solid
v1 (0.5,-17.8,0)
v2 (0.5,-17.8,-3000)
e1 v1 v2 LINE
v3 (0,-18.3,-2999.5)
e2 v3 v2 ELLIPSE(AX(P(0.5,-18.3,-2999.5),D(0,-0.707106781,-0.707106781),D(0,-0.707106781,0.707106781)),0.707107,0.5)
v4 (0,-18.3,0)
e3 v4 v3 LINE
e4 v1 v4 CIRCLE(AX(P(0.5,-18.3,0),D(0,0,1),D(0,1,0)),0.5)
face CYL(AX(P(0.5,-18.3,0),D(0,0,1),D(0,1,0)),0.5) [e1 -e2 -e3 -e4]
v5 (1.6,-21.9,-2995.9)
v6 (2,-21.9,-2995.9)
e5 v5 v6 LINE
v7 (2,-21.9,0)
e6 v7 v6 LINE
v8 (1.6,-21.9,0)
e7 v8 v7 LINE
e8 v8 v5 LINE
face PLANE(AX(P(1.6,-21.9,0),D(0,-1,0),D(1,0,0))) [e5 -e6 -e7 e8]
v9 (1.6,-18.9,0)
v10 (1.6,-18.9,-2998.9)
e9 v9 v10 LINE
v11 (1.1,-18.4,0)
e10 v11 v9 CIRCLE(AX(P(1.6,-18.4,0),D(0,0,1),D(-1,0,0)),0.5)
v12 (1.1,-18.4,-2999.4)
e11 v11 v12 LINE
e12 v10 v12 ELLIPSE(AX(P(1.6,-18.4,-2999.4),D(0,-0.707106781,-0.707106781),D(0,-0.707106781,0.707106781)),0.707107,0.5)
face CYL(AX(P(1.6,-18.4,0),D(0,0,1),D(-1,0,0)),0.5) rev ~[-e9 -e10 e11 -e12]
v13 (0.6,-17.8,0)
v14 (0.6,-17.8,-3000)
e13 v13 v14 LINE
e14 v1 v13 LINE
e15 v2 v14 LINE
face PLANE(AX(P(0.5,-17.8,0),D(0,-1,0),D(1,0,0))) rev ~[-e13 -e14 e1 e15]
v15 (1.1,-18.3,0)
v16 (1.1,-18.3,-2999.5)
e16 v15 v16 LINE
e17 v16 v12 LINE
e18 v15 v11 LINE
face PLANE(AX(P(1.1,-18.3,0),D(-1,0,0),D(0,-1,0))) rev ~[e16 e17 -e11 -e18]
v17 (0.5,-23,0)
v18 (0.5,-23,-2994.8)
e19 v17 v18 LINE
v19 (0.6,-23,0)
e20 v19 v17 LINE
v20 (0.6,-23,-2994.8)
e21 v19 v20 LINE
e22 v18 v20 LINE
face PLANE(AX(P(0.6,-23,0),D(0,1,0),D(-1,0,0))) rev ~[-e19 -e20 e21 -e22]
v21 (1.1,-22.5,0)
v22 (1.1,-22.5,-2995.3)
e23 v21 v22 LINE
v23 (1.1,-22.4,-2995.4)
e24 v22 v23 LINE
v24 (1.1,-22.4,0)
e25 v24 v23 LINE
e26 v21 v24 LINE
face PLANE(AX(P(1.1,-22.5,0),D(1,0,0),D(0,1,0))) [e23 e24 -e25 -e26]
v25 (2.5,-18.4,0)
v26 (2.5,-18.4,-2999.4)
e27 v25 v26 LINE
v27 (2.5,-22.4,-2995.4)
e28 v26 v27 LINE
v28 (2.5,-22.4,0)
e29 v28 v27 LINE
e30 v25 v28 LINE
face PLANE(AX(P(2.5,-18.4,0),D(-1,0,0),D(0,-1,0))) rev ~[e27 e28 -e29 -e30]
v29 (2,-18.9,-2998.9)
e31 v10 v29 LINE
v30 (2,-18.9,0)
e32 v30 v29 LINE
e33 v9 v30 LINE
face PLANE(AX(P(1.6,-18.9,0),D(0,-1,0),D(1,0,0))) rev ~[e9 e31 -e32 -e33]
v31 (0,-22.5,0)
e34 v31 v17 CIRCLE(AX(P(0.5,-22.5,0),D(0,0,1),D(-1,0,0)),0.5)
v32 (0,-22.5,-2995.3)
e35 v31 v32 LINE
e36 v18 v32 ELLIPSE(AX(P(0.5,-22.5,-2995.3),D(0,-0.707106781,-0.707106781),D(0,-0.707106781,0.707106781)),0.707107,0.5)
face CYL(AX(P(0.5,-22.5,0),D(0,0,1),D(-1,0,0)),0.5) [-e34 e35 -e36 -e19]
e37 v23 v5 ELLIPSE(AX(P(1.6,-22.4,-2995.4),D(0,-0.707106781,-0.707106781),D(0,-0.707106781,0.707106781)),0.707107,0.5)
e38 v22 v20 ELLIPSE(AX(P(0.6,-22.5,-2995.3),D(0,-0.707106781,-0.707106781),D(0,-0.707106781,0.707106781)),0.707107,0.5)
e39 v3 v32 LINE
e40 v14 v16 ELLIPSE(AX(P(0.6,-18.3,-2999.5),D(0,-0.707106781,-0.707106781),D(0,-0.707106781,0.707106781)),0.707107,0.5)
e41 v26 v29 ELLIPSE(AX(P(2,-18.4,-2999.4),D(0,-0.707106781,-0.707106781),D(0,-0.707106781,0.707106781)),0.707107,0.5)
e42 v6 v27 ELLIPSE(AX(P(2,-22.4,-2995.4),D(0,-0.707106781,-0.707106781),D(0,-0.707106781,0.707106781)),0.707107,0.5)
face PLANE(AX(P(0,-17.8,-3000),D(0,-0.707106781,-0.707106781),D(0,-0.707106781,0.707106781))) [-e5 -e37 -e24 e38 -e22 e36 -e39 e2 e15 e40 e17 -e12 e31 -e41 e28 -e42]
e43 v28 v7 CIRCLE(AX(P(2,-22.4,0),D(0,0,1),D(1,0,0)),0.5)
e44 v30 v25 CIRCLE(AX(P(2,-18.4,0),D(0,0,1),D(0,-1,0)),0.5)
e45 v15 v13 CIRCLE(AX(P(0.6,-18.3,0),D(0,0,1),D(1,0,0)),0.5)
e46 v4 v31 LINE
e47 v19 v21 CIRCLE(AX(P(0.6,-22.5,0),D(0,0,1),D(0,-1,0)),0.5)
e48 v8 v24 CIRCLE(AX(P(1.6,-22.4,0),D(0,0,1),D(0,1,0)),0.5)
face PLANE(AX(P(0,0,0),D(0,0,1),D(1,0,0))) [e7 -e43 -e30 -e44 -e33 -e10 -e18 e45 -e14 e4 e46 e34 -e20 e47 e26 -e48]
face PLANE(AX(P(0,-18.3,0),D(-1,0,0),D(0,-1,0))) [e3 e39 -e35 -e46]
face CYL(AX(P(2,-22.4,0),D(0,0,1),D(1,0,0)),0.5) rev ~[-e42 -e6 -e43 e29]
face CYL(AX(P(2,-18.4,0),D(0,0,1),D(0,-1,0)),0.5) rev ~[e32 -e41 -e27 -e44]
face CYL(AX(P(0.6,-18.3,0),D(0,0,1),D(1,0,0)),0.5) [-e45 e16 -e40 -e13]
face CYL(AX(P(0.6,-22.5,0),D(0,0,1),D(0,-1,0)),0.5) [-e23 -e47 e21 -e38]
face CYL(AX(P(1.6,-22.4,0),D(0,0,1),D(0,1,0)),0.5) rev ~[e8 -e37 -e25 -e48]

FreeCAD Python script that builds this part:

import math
import FreeCAD as App
import Part
import Sketcher

V = App.Vector

doc = App.newDocument("Part")
body = doc.addObject("PartDesign::Body", "Body")

sketch1 = body.newObject("Sketcher::SketchObject", "Sketch")
sketch1.AttachmentSupport = (doc.getObject("XY_Plane"), [""])
sketch1.MapMode = "FlatFace"
sketch1.addGeometry(Part.LineSegment(V(0.5, -23, 0), V(0.6, -23, 0)), False)
sketch1.addGeometry(Part.ArcOfCircle(Part.Circle(V(0.6, -22.5, 0), V(0, 0, 1), 0.5), math.radians(-90), math.radians(0)), False)
sketch1.addGeometry(Part.LineSegment(V(1.1, -22.5, 0), V(1.1, -22.4, 0)), False)
sketch1.addGeometry(Part.ArcOfCircle(Part.Circle(V(1.6, -22.4, 0), V(0, 0, 1), 0.5), math.radians(90), math.radians(180)), False)
sketch1.addGeometry(Part.LineSegment(V(1.6, -21.9, 0), V(2, -21.9, 0)), False)
sketch1.addGeometry(Part.ArcOfCircle(Part.Circle(V(2, -22.4, 0), V(0, 0, 1), 0.5), math.radians(0), math.radians(90)), False)
sketch1.addGeometry(Part.LineSegment(V(2.5, -22.4, 0), V(2.5, -18.4, 0)), False)
sketch1.addGeometry(Part.ArcOfCircle(Part.Circle(V(2, -18.4, 0), V(0, 0, 1), 0.5), math.radians(-90), math.radians(0)), False)
sketch1.addGeometry(Part.LineSegment(V(2, -18.9, 0), V(1.6, -18.9, 0)), False)
sketch1.addGeometry(Part.ArcOfCircle(Part.Circle(V(1.6, -18.4, 0), V(0, 0, 1), 0.5), math.radians(180), math.radians(270)), False)
sketch1.addGeometry(Part.LineSegment(V(1.1, -18.4, 0), V(1.1, -18.3, 0)), False)
sketch1.addGeometry(Part.ArcOfCircle(Part.Circle(V(0.6, -18.3, 0), V(0, 0, 1), 0.5), math.radians(0), math.radians(90)), False)
sketch1.addGeometry(Part.LineSegment(V(0.6, -17.8, 0), V(0.5, -17.8, 0)), False)
sketch1.addGeometry(Part.ArcOfCircle(Part.Circle(V(0.5, -18.3, 0), V(0, 0, 1), 0.5), math.radians(90), math.radians(180)), False)
sketch1.addGeometry(Part.LineSegment(V(0, -18.3, 0), V(0, -22.5, 0)), False)
sketch1.addGeometry(Part.ArcOfCircle(Part.Circle(V(0.5, -22.5, 0), V(0, 0, 1), 0.5), math.radians(180), math.radians(270)), False)
sketch1.addConstraint(Sketcher.Constraint("Tangent", 0, 2, 1, 1))
sketch1.addConstraint(Sketcher.Constraint("Tangent", 1, 2, 2, 1))
sketch1.addConstraint(Sketcher.Constraint("Tangent", 2, 2, 3, 2))
sketch1.addConstraint(Sketcher.Constraint("Tangent", 3, 1, 4, 1))
sketch1.addConstraint(Sketcher.Constraint("Tangent", 4, 2, 5, 2))
sketch1.addConstraint(Sketcher.Constraint("Tangent", 5, 1, 6, 1))
sketch1.addConstraint(Sketcher.Constraint("Tangent", 6, 2, 7, 2))
sketch1.addConstraint(Sketcher.Constraint("Tangent", 7, 1, 8, 1))
sketch1.addConstraint(Sketcher.Constraint("Tangent", 8, 2, 9, 2))
sketch1.addConstraint(Sketcher.Constraint("Tangent", 9, 1, 10, 1))
sketch1.addConstraint(Sketcher.Constraint("Tangent", 10, 2, 11, 1))
sketch1.addConstraint(Sketcher.Constraint("Tangent", 11, 2, 12, 1))
sketch1.addConstraint(Sketcher.Constraint("Tangent", 12, 2, 13, 1))
sketch1.addConstraint(Sketcher.Constraint("Tangent", 13, 2, 14, 1))
sketch1.addConstraint(Sketcher.Constraint("Tangent", 14, 2, 15, 1))
sketch1.addConstraint(Sketcher.Constraint("Tangent", 15, 2, 0, 1))
sketch1.addConstraint(Sketcher.Constraint("Horizontal", 0))
sketch1.addConstraint(Sketcher.Constraint("Vertical", 2))
sketch1.addConstraint(Sketcher.Constraint("Horizontal", 4))
sketch1.addConstraint(Sketcher.Constraint("Vertical", 6))
sketch1.addConstraint(Sketcher.Constraint("Horizontal", 8))
sketch1.addConstraint(Sketcher.Constraint("Vertical", 10))
sketch1.addConstraint(Sketcher.Constraint("Horizontal", 12))
sketch1.addConstraint(Sketcher.Constraint("Vertical", 14))
sketch1.addConstraint(Sketcher.Constraint("Equal", 1, 3))
sketch1.addConstraint(Sketcher.Constraint("Equal", 3, 5))
sketch1.addConstraint(Sketcher.Constraint("Equal", 5, 7))
sketch1.addConstraint(Sketcher.Constraint("Equal", 7, 9))
sketch1.addConstraint(Sketcher.Constraint("Equal", 9, 11))
sketch1.addConstraint(Sketcher.Constraint("Equal", 11, 13))
sketch1.addConstraint(Sketcher.Constraint("Equal", 13, 15))
sketch1.addConstraint(Sketcher.Constraint("PointOnObject", 13, 2, -2))
sketch1.addConstraint(Sketcher.Constraint("Vertical", 3, 3, 9, 3))
sketch1.addConstraint(Sketcher.Constraint("Equal", 12, 2))
sketch1.addConstraint(Sketcher.Constraint("Equal", 2, 10))
sketch1.addConstraint(Sketcher.Constraint("Radius", 1, 0.5))
sketch1.addConstraint(Sketcher.Constraint("DistanceX", -1, 1, 1, 2, 1.1))
sketch1.addConstraint(Sketcher.Constraint("DistanceX", 13, 3, 7, 3, 1.5))
sketch1.addConstraint(Sketcher.Constraint("DistanceY", 6, 1, 6, 2, 4.0))
sketch1.addConstraint(Sketcher.Constraint("DistanceY", 0, 2, -1, 1, 23.0))
pad1 = body.newObject("PartDesign::Pad", "Pad")
pad1.Profile = sketch1
pad1.Length = 3000
pad1.Reversed = True

sketch2 = body.newObject("Sketcher::SketchObject", "Sketch001")
sketch2.AttachmentSupport = (doc.getObject("YZ_Plane"), [""])
sketch2.MapMode = "FlatFace"
sketch2.addGeometry(Part.LineSegment(V(-17.8, -3000, 0), V(-23, -3000, 0)), False)
sketch2.addGeometry(Part.LineSegment(V(-23, -3000, 0), V(-23, -2994.8, 0)), False)
sketch2.addGeometry(Part.LineSegment(V(-23, -2994.8, 0), V(-17.8, -3000, 0)), False)
sketch2.addConstraint(Sketcher.Constraint("Coincident", 0, 2, 1, 1))
sketch2.addConstraint(Sketcher.Constraint("Coincident", 1, 2, 2, 1))
sketch2.addConstraint(Sketcher.Constraint("Coincident", 2, 2, 0, 1))
sketch2.addConstraint(Sketcher.Constraint("Horizontal", 0))
sketch2.addConstraint(Sketcher.Constraint("Vertical", 1))
sketch2.addConstraint(Sketcher.Constraint("Equal", 0, 1))
sketch2.addConstraint(Sketcher.Constraint("DistanceX", 0, 2, 0, 1, 5.2))
sketch2.addConstraint(Sketcher.Constraint("DistanceX", 0, 2, -1, 1, 23.0))
sketch2.addConstraint(Sketcher.Constraint("DistanceY", 0, 2, -1, 1, 3000.0))
pocket1 = body.newObject("PartDesign::Pocket", "Pocket")
pocket1.Profile = sketch2
pocket1.Length = 2.5
pocket1.Reversed = True

doc.recompute()
